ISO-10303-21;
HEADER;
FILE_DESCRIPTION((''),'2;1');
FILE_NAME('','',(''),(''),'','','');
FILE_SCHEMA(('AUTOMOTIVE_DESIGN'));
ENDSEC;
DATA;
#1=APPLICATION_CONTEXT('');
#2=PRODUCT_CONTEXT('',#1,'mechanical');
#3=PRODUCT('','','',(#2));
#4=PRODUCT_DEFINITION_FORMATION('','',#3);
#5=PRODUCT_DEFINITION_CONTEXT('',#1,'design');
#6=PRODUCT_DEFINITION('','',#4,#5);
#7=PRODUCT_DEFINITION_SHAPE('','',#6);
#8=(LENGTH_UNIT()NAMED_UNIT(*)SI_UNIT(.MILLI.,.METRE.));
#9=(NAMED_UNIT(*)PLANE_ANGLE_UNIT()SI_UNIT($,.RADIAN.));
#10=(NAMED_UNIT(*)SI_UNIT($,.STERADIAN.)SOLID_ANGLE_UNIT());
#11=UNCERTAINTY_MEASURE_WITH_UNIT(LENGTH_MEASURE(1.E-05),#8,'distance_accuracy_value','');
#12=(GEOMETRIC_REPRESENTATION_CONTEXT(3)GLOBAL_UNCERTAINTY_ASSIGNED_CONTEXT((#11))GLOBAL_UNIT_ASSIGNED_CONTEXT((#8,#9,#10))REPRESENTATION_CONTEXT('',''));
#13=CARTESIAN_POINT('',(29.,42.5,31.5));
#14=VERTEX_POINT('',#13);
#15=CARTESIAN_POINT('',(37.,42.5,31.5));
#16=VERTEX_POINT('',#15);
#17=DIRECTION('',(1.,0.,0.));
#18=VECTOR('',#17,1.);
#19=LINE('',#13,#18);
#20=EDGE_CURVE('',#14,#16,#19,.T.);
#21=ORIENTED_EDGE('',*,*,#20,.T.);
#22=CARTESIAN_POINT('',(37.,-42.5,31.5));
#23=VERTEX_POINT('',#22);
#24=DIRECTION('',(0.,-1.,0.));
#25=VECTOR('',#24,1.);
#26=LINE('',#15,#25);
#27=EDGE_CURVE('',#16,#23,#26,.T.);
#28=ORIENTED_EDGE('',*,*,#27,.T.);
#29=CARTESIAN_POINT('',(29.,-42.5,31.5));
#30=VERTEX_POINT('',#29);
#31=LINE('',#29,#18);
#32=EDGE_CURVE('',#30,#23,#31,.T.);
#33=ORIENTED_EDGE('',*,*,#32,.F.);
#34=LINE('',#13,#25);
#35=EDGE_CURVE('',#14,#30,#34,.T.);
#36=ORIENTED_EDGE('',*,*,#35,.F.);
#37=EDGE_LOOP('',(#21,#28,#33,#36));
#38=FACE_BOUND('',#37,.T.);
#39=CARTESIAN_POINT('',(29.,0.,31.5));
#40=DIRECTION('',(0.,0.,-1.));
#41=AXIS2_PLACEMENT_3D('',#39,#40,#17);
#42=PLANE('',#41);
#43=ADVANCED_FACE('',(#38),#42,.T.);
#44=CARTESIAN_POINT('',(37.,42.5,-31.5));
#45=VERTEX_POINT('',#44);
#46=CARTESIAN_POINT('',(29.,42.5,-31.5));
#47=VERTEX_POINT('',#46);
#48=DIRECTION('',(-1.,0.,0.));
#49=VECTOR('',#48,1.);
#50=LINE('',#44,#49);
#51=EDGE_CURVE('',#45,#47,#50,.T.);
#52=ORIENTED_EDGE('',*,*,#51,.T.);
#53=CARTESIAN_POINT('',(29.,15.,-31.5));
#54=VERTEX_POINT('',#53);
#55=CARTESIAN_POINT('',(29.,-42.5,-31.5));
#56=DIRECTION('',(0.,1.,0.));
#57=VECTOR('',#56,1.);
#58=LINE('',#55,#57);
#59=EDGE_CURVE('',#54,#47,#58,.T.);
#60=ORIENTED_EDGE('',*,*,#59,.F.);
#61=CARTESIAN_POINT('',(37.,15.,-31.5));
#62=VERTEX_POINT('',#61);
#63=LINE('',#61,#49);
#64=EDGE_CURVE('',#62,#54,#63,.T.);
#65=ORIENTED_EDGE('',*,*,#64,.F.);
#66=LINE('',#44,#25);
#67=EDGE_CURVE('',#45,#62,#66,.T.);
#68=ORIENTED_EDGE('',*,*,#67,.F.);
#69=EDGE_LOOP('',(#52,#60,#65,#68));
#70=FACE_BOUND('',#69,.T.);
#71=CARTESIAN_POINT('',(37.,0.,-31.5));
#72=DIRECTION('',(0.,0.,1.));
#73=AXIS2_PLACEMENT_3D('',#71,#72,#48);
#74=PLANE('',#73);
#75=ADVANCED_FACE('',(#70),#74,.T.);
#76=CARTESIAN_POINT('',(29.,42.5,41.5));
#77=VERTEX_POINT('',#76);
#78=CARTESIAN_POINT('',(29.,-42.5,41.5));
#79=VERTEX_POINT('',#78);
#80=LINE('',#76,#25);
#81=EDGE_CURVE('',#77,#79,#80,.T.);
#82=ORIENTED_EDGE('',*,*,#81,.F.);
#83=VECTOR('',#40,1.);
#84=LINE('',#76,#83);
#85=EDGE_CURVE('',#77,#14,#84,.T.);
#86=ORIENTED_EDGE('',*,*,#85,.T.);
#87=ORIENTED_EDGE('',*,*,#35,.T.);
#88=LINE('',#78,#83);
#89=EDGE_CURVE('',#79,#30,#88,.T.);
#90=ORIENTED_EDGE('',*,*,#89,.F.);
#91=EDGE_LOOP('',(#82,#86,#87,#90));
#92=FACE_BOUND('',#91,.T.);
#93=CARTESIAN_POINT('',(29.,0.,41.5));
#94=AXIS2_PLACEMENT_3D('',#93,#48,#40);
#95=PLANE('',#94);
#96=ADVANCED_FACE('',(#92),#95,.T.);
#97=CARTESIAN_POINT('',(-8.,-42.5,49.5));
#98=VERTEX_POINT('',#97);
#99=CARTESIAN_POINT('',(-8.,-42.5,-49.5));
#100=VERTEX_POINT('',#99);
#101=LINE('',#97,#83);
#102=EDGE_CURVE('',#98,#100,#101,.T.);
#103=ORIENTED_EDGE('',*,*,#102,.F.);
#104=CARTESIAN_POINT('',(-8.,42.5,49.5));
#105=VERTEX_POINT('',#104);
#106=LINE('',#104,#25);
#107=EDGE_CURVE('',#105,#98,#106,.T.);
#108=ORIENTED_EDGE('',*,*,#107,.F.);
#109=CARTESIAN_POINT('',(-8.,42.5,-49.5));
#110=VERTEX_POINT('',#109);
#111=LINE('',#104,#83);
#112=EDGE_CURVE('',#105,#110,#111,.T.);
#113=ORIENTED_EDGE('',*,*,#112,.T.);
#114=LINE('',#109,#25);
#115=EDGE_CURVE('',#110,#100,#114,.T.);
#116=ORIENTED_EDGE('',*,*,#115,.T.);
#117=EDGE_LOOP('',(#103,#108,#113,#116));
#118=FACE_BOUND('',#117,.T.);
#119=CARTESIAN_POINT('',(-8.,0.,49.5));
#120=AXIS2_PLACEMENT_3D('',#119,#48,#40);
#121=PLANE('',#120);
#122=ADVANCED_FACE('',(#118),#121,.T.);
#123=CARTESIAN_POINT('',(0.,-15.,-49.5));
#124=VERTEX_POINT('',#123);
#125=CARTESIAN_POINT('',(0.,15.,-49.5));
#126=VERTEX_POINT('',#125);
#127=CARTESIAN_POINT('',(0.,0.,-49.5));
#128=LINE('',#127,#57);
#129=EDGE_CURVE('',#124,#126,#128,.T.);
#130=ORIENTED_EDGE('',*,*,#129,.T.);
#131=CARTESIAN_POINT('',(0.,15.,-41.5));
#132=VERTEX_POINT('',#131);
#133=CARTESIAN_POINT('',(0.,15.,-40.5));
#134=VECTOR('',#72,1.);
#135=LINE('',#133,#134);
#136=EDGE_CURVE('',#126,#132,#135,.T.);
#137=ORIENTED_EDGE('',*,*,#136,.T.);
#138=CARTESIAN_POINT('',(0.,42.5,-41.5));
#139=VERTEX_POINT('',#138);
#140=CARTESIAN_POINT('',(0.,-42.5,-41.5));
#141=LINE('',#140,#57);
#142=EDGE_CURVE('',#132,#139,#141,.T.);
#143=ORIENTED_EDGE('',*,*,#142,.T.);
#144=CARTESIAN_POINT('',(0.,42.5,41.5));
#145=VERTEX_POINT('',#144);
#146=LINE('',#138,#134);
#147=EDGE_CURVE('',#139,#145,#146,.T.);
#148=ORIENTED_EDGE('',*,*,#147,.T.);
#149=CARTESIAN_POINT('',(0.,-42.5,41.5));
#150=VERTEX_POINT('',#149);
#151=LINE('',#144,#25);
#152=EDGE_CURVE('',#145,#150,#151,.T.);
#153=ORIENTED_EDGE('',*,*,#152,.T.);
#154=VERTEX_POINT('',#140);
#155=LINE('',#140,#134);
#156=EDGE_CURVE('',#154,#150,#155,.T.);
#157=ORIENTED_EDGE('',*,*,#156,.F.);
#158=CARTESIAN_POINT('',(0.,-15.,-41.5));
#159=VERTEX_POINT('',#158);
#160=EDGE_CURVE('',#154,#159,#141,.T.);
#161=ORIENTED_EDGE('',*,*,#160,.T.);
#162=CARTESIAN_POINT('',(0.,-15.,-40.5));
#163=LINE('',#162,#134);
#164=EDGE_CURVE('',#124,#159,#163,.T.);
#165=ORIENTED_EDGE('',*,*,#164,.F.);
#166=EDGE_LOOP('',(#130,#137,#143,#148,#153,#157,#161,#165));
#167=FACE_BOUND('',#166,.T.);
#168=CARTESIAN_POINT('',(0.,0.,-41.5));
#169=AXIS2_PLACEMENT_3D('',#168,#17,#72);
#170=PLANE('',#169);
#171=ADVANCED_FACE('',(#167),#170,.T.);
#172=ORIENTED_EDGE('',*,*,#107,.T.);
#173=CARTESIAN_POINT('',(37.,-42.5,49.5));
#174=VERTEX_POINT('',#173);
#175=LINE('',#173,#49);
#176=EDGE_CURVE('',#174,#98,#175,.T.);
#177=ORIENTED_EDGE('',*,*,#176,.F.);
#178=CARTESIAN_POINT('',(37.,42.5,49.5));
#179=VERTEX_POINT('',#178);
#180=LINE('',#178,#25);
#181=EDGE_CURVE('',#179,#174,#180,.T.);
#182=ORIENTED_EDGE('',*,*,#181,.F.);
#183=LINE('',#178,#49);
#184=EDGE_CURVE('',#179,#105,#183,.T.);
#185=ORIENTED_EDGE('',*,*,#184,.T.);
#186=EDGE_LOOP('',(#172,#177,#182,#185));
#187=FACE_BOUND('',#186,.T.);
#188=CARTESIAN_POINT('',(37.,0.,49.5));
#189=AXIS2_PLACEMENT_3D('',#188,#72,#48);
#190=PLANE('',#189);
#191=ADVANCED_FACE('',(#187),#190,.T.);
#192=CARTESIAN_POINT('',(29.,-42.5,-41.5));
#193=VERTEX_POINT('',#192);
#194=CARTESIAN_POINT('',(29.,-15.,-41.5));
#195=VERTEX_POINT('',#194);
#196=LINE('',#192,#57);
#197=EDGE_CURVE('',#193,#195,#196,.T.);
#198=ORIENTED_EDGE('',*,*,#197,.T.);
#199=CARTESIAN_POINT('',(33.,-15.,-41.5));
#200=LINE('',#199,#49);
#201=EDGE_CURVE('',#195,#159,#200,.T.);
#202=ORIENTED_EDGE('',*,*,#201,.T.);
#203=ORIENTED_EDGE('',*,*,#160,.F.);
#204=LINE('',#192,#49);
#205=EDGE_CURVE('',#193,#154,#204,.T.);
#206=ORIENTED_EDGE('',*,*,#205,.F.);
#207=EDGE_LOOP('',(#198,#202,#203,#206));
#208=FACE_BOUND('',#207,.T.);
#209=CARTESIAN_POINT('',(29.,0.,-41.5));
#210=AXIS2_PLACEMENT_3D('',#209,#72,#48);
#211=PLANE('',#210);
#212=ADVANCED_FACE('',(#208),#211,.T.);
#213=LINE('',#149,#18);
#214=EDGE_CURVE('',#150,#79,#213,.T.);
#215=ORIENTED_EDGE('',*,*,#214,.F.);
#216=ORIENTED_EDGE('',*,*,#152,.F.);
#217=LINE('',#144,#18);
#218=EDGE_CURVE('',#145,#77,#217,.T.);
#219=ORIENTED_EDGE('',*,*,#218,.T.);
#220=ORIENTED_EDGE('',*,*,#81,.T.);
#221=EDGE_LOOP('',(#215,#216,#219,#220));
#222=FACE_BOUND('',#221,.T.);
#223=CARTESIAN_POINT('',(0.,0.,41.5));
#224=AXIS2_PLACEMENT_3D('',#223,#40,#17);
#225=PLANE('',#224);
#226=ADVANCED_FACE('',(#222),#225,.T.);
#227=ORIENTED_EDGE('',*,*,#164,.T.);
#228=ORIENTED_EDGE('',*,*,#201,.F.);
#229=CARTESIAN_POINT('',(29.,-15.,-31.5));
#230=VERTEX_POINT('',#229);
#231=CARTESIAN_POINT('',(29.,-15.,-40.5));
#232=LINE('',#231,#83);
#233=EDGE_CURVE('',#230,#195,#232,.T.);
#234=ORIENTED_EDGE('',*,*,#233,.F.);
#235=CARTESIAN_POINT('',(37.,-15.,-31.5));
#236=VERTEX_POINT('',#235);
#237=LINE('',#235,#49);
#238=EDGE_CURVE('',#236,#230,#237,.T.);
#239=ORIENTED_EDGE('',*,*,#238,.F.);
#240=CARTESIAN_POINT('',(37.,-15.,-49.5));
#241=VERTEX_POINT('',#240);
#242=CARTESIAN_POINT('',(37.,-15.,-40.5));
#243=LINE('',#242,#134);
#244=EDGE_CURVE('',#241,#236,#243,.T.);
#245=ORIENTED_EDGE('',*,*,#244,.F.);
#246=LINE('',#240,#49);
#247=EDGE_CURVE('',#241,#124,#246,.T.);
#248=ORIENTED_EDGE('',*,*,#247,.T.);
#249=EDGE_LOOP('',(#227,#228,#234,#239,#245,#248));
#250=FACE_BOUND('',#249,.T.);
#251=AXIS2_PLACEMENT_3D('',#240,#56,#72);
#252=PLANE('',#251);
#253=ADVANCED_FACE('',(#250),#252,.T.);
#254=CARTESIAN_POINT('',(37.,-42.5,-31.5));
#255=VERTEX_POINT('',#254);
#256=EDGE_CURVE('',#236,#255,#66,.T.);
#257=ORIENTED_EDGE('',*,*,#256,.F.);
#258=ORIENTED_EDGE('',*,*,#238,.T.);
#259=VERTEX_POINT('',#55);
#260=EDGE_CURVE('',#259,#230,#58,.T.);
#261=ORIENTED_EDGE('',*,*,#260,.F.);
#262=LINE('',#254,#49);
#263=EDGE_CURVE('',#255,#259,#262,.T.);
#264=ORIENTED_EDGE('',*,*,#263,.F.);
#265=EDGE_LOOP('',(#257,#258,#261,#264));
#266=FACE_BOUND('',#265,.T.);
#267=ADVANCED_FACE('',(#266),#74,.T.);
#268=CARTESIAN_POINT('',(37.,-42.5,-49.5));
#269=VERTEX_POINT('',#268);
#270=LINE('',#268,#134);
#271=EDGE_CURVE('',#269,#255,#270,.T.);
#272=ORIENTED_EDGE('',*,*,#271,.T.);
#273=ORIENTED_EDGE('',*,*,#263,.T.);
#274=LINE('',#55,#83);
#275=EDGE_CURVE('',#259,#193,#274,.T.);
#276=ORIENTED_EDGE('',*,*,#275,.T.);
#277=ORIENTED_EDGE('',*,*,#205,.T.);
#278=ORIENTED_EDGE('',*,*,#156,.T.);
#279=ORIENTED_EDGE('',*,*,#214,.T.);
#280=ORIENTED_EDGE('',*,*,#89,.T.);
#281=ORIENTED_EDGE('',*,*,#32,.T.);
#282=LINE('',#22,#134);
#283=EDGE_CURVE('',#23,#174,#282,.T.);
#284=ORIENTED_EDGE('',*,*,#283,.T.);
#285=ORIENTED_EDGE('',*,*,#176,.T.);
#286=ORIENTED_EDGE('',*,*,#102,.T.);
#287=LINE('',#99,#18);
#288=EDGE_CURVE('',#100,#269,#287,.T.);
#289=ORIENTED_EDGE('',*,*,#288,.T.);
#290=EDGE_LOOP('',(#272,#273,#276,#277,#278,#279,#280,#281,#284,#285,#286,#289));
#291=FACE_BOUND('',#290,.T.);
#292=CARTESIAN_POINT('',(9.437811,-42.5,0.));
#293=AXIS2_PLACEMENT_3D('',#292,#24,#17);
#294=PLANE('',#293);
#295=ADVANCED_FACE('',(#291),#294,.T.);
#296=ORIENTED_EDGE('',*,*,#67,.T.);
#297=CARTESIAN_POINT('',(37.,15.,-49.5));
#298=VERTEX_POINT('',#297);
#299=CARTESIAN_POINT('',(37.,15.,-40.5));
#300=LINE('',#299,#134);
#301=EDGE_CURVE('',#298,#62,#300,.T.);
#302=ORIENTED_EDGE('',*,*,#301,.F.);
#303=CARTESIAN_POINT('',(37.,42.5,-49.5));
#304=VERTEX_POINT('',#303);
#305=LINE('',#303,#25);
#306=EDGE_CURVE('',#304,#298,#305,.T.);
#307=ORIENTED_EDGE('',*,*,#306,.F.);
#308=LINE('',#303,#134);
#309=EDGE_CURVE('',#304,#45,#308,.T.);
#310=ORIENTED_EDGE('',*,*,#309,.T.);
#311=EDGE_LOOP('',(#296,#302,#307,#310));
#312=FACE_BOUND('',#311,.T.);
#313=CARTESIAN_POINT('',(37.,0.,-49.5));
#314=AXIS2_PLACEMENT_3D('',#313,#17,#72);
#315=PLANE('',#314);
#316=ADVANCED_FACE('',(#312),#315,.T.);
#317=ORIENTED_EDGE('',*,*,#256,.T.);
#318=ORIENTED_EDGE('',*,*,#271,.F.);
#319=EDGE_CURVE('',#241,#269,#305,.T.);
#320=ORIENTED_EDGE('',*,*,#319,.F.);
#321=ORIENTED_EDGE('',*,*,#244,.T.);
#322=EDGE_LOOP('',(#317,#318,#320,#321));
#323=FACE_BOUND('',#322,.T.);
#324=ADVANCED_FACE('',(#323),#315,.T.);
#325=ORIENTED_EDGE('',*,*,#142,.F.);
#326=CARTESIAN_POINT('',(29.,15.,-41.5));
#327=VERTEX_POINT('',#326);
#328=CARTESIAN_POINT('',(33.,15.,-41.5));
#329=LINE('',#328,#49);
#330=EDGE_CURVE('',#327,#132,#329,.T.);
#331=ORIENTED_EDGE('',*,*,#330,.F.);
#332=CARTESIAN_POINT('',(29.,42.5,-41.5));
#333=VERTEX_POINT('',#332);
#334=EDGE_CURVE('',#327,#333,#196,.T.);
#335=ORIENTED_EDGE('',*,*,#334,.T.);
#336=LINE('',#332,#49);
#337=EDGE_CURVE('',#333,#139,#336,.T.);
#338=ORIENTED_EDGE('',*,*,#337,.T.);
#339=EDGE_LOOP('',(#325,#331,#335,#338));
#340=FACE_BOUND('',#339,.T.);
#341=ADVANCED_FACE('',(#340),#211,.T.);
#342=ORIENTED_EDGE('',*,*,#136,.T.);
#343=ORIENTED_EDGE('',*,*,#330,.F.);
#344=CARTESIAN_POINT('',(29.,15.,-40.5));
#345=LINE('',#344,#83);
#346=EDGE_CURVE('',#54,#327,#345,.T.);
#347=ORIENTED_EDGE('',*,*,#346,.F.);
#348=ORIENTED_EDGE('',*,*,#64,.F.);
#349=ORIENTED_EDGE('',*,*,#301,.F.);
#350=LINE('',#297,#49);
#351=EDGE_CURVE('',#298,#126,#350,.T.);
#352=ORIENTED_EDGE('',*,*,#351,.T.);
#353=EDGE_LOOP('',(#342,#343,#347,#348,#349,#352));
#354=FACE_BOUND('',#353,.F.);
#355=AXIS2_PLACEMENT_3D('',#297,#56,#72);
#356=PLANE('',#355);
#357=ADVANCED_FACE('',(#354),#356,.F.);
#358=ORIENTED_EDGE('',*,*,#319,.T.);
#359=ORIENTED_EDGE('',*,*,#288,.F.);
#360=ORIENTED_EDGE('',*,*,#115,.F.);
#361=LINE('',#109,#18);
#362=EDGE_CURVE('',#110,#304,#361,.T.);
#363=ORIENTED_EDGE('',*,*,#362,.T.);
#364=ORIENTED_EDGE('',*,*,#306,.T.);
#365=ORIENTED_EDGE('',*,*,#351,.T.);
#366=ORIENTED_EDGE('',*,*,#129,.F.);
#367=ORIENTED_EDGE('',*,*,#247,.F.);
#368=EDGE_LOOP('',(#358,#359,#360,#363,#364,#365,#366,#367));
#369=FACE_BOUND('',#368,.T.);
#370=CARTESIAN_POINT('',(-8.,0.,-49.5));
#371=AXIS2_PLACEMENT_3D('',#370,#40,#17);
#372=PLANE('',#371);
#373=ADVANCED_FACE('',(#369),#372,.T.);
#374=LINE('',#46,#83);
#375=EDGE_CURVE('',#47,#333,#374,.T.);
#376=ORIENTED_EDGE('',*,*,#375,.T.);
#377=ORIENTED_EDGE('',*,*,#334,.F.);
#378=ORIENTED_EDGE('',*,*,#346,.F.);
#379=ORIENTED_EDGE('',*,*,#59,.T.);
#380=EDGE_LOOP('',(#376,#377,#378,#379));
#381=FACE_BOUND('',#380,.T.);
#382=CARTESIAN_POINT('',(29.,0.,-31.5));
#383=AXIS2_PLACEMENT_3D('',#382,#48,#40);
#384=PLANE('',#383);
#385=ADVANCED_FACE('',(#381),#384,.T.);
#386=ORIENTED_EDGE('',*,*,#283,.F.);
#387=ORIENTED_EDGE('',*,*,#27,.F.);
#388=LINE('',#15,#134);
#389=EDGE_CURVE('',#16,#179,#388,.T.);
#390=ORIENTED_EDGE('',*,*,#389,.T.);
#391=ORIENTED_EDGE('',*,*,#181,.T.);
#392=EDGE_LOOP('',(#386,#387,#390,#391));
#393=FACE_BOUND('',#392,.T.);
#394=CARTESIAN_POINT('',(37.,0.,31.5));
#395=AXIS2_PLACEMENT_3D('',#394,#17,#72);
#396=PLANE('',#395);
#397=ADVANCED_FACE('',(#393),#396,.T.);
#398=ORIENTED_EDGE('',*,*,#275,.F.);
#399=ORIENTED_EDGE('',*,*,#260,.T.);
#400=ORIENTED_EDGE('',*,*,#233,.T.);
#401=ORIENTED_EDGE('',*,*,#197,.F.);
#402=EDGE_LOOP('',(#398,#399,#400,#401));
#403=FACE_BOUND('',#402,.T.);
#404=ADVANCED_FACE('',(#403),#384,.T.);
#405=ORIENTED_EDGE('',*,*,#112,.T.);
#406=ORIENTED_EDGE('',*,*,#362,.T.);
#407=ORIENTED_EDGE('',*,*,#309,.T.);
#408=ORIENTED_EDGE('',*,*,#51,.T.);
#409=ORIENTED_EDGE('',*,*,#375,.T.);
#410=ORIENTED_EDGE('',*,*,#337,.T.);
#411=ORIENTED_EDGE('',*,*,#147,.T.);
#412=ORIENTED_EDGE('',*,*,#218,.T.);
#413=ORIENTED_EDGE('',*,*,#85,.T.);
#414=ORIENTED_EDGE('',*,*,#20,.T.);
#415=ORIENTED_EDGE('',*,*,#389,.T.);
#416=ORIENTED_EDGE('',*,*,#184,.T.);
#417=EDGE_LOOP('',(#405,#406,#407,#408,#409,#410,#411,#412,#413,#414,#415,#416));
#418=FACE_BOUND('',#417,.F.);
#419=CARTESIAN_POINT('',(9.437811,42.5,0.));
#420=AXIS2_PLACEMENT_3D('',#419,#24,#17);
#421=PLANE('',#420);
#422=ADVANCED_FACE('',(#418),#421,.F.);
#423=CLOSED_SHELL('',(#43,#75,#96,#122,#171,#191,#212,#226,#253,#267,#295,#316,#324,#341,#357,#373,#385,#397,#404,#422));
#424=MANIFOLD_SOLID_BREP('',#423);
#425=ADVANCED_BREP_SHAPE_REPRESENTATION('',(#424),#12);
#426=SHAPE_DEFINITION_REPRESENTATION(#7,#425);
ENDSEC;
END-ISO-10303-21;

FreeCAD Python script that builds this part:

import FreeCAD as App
import Part
import Sketcher
from FreeCAD import Vector


def add_polygon(sketch, points):
    """Adds a closed chain of lines whose ends are joined by coincident constraints."""
    first, n = sketch.GeometryCount, len(points)
    for a, b in zip(points, points[1:] + points[:1]):
        sketch.addGeometry(Part.LineSegment(App.Vector(*a, 0), App.Vector(*b, 0)), False)
    for i in range(n):
        sketch.addConstraint(Sketcher.Constraint("Coincident", first + i, 2, first + (i + 1) % n, 1))

doc = App.newDocument("Part")
body = doc.addObject("PartDesign::Body", "Body")

sketch1 = body.newObject("Sketcher::SketchObject", "Sketch")
sketch1.AttachmentSupport = (doc.getObject("XZ_Plane"), [""])
sketch1.MapMode = "FlatFace"
add_polygon(sketch1, [(0, -42), (0, 42), (29, 42), (29, 32), (37, 32), (37, 50), (-8, 50), (-8, -50), (37, -50), (37, -32), (29, -32), (29, -42)])
sketch1.addConstraint([
    Sketcher.Constraint("Vertical", 0),
    Sketcher.Constraint("Horizontal", 1),
    Sketcher.Constraint("Vertical", 2),
    Sketcher.Constraint("Horizontal", 3),
    Sketcher.Constraint("Vertical", 4),
    Sketcher.Constraint("Horizontal", 5),
    Sketcher.Constraint("Vertical", 6),
    Sketcher.Constraint("Horizontal", 7),
    Sketcher.Constraint("Vertical", 8),
    Sketcher.Constraint("Horizontal", 9),
    Sketcher.Constraint("Vertical", 10),
    Sketcher.Constraint("Horizontal", 11),
    Sketcher.Constraint("Symmetric", 0, 2, 11, 2, -1, 1),
    Sketcher.Constraint("Symmetric", 4, 2, 7, 2, -1),
    Sketcher.Constraint("Symmetric", 2, 2, 9, 2, -1),
    Sketcher.Constraint("DistanceX", 1, 1, 1, 2, 29.0),
    Sketcher.Constraint("DistanceX", 3, 1, 3, 2, 8.0),
    Sketcher.Constraint("DistanceX", 5, 2, 5, 1, 45.0),
    Sketcher.Constraint("DistanceY", 0, 1, 0, 2, 83.0),
    Sketcher.Constraint("DistanceY", 2, 2, 2, 1, 10.0),
    Sketcher.Constraint("DistanceY", 4, 1, 4, 2, 18.0),
])
pad1 = body.newObject("PartDesign::Pad", "Pad")
pad1.Profile = sketch1
pad1.Length = 85
pad1.Midplane = True

sketch2 = body.newObject("Sketcher::SketchObject", "Sketch001")
sketch2.AttachmentSupport = (doc.getObject("YZ_Plane"), [""])
sketch2.MapMode = "FlatFace"
sketch2.AttachmentOffset = App.Placement(Vector(0, 0, 37), App.Rotation())
add_polygon(sketch2, [(-15, -32), (-15, -50), (15, -50), (15, -32)])
sketch2.addConstraint([
    Sketcher.Constraint("Vertical", 0),
    Sketcher.Constraint("Horizontal", 1),
    Sketcher.Constraint("Vertical", 2),
    Sketcher.Constraint("Horizontal", 3),
    Sketcher.Constraint("DistanceX", 1, 1, 1, 2, 30.0),
    Sketcher.Constraint("DistanceY", 0, 2, 0, 1, 18.0),
    Sketcher.Constraint("DistanceX", 0, 2, -1, 1, 15.0),
    Sketcher.Constraint("DistanceY", 0, 2, -1, 1, 49.5),
])
pocket1 = body.newObject("PartDesign::Pocket", "Pocket")
pocket1.Profile = sketch2
pocket1.Length = 37

doc.recompute()
